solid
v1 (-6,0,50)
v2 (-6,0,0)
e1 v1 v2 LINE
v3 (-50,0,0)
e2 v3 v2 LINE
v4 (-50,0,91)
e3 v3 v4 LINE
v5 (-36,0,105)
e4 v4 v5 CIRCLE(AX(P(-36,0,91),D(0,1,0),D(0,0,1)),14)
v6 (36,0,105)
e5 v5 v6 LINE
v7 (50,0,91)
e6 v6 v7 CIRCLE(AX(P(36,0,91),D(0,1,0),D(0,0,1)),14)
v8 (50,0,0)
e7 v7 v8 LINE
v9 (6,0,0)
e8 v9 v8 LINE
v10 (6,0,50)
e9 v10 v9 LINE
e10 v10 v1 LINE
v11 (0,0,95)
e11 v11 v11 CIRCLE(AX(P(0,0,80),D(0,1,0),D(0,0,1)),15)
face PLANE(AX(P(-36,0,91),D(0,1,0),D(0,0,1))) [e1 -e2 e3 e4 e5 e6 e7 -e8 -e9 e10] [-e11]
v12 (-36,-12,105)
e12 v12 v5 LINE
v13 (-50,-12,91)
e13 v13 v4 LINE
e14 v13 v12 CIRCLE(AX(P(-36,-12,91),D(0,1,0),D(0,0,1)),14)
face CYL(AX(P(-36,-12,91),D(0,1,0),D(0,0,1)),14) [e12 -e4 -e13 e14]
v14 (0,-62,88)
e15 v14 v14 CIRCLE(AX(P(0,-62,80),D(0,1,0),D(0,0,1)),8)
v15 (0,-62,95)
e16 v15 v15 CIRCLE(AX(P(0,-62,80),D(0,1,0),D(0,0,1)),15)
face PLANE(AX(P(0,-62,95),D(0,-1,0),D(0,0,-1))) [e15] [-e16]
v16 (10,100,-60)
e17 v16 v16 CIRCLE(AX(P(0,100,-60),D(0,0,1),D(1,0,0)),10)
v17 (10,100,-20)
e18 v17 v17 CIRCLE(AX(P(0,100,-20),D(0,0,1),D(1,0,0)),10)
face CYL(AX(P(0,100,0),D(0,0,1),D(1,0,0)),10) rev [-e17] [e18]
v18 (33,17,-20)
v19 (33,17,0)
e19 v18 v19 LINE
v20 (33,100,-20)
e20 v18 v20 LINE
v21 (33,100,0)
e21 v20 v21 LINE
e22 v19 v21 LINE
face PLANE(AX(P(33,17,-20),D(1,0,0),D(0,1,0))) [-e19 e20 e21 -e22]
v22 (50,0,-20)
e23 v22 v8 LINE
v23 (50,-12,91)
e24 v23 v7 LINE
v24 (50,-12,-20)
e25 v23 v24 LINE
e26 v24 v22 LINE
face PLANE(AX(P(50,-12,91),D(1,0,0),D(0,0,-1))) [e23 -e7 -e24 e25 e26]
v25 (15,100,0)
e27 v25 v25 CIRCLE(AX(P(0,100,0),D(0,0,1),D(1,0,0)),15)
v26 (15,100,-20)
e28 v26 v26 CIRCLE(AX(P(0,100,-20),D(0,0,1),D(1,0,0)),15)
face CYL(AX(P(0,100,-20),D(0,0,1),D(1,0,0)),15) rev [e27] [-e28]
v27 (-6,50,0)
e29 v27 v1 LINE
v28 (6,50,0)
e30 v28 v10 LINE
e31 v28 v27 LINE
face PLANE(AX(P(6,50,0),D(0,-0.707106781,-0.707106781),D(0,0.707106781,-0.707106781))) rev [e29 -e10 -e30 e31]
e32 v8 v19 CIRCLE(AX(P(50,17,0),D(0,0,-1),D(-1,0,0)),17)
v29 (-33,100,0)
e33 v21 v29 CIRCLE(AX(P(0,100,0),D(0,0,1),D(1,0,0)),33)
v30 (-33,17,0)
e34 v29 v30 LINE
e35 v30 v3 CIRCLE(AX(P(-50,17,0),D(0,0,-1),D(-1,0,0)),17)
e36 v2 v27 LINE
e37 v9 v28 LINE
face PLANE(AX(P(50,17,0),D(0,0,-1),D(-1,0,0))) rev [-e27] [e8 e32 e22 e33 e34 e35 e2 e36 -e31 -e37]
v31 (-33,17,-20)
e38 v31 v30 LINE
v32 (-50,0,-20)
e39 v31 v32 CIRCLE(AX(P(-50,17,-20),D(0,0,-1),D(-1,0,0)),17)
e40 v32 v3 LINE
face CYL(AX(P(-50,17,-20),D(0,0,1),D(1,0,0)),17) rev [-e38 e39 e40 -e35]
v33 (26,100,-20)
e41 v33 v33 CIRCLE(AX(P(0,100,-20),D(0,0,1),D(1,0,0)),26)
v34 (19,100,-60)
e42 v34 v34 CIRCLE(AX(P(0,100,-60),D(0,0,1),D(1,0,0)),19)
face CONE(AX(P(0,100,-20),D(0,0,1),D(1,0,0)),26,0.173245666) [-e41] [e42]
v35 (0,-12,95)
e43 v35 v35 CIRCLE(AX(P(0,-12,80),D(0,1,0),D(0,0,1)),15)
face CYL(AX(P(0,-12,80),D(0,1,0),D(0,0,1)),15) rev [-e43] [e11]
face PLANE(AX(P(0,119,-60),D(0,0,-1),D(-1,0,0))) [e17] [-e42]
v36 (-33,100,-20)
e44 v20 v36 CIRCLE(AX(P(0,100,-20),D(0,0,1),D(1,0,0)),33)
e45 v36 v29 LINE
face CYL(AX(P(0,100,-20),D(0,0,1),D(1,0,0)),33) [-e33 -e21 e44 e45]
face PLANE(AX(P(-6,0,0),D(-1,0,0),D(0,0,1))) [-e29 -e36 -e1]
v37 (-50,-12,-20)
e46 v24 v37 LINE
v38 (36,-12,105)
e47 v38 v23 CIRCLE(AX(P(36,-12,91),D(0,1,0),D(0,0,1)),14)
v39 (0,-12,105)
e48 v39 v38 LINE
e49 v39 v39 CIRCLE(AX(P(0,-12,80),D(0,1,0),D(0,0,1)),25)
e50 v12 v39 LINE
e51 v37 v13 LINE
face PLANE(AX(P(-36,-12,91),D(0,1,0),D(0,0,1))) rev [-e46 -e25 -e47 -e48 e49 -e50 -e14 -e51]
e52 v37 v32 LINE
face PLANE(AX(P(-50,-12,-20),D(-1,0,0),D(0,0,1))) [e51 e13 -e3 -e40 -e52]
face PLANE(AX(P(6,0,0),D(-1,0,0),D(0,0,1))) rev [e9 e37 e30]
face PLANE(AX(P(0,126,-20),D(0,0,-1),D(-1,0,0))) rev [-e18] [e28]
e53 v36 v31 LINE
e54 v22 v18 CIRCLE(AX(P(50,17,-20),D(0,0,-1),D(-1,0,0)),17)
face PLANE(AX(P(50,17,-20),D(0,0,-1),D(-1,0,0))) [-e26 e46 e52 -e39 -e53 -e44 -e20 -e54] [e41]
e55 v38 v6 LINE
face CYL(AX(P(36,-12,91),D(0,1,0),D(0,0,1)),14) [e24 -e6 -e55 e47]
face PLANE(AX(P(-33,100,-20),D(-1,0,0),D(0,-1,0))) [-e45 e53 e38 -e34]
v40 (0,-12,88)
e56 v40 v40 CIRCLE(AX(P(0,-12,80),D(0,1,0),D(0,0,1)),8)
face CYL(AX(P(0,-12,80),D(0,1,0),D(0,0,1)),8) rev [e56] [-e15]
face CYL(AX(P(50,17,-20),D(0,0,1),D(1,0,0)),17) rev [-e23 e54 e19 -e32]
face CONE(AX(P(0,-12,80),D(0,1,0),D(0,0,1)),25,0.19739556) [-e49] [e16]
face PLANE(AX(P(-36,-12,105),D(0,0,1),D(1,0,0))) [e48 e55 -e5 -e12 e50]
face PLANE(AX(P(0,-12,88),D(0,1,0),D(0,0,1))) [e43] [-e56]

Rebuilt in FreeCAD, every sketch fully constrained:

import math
import FreeCAD as App
import Part
import Sketcher

V = App.Vector

doc = App.newDocument("Part")
body = doc.addObject("PartDesign::Body", "Body")

sketch1 = body.newObject("Sketcher::SketchObject", "Sketch")
sketch1.AttachmentSupport = (doc.getObject("XY_Plane"), [""])
sketch1.MapMode = "FlatFace"
sketch1.addGeometry(Part.LineSegment(V(-50, 0, 0), V(50, 0, 0)), False)
sketch1.addGeometry(Part.ArcOfCircle(Part.Circle(V(50, 17, 0), V(0, 0, 1), 17), math.radians(-180), math.radians(-90)), False)
sketch1.addGeometry(Part.LineSegment(V(33, 17, 0), V(33, 100, 0)), False)
sketch1.addGeometry(Part.ArcOfCircle(Part.Circle(V(0, 100, 0), V(0, 0, 1), 33), math.radians(0), math.radians(180)), False)
sketch1.addGeometry(Part.LineSegment(V(-33, 100, 0), V(-33, 17, 0)), False)
sketch1.addGeometry(Part.ArcOfCircle(Part.Circle(V(-50, 17, 0), V(0, 0, 1), 17), math.radians(-90), math.radians(0)), False)
sketch1.addGeometry(Part.Circle(V(0, 100, 0), V(0, 0, 1), 15), False)
sketch1.addConstraint(Sketcher.Constraint("Tangent", 0, 2, 1, 2))
sketch1.addConstraint(Sketcher.Constraint("Tangent", 1, 1, 2, 1))
sketch1.addConstraint(Sketcher.Constraint("Tangent", 2, 2, 3, 1))
sketch1.addConstraint(Sketcher.Constraint("Tangent", 3, 2, 4, 1))
sketch1.addConstraint(Sketcher.Constraint("Tangent", 4, 2, 5, 2))
sketch1.addConstraint(Sketcher.Constraint("Tangent", 5, 1, 0, 1))
sketch1.addConstraint(Sketcher.Constraint("Horizontal", 0))
sketch1.addConstraint(Sketcher.Constraint("Vertical", 2))
sketch1.addConstraint(Sketcher.Constraint("Vertical", 4))
sketch1.addConstraint(Sketcher.Constraint("Coincident", 6, 3, 3, 3))
sketch1.addConstraint(Sketcher.Constraint("Equal", 1, 5))
sketch1.addConstraint(Sketcher.Constraint("Symmetric", 0, 2, 5, 1, -1, 1))
sketch1.addConstraint(Sketcher.Constraint("Diameter", 6, 30.0))
sketch1.addConstraint(Sketcher.Constraint("Radius", 1, 17.0))
sketch1.addConstraint(Sketcher.Constraint("Radius", 3, 33.0))
sketch1.addConstraint(Sketcher.Constraint("DistanceY", 2, 1, 2, 2, 83.0))
pad1 = body.newObject("PartDesign::Pad", "Pad")
pad1.Profile = sketch1
pad1.Length = 20
pad1.Reversed = True

sketch2 = body.newObject("Sketcher::SketchObject", "Sketch001")
sketch2.AttachmentSupport = (doc.getObject("XZ_Plane"), [""])
sketch2.MapMode = "FlatFace"
sketch2.addGeometry(Part.LineSegment(V(-50, -20, 0), V(-50, 91, 0)), False)
sketch2.addGeometry(Part.ArcOfCircle(Part.Circle(V(-36, 91, 0), V(0, 0, 1), 14), math.radians(90), math.radians(180)), False)
sketch2.addGeometry(Part.LineSegment(V(-36, 105, 0), V(36, 105, 0)), False)
sketch2.addGeometry(Part.ArcOfCircle(Part.Circle(V(36, 91, 0), V(0, 0, 1), 14), math.radians(0), math.radians(90)), False)
sketch2.addGeometry(Part.LineSegment(V(50, 91, 0), V(50, -20, 0)), False)
sketch2.addGeometry(Part.LineSegment(V(50, -20, 0), V(-50, -20, 0)), False)
sketch2.addGeometry(Part.Circle(V(0, 80, 0), V(0, 0, 1), 15), False)
sketch2.addConstraint(Sketcher.Constraint("Tangent", 0, 2, 1, 2))
sketch2.addConstraint(Sketcher.Constraint("Tangent", 1, 1, 2, 1))
sketch2.addConstraint(Sketcher.Constraint("Tangent", 2, 2, 3, 2))
sketch2.addConstraint(Sketcher.Constraint("Tangent", 3, 1, 4, 1))
sketch2.addConstraint(Sketcher.Constraint("Coincident", 4, 2, 5, 1))
sketch2.addConstraint(Sketcher.Constraint("Coincident", 5, 2, 0, 1))
sketch2.addConstraint(Sketcher.Constraint("Vertical", 0))
sketch2.addConstraint(Sketcher.Constraint("Horizontal", 2))
sketch2.addConstraint(Sketcher.Constraint("Vertical", 4))
sketch2.addConstraint(Sketcher.Constraint("Horizontal", 5))
sketch2.addConstraint(Sketcher.Constraint("Equal", 1, 3))
sketch2.addConstraint(Sketcher.Constraint("PointOnObject", 6, 3, -2))
sketch2.addConstraint(Sketcher.Constraint("Diameter", 6, 30.0))
sketch2.addConstraint(Sketcher.Constraint("Radius", 1, 14.0))
sketch2.addConstraint(Sketcher.Constraint("DistanceX", 2, 1, 2, 2, 72.0))
sketch2.addConstraint(Sketcher.Constraint("DistanceY", 0, 1, 0, 2, 111.0))
sketch2.addConstraint(Sketcher.Constraint("DistanceX", 1, 3, -1, 1, 36.0))
sketch2.addConstraint(Sketcher.Constraint("DistanceY", -1, 1, 1, 3, 91.0))
sketch2.addConstraint(Sketcher.Constraint("DistanceY", -1, 1, 6, 3, 80.0))
pad2 = body.newObject("PartDesign::Pad", "Pad001")
pad2.Profile = sketch2
pad2.Length = 12

sketch3 = body.newObject("Sketcher::SketchObject", "Sketch002")
sketch3.AttachmentSupport = (doc.getObject("YZ_Plane"), [""])
sketch3.MapMode = "FlatFace"
sketch3.addGeometry(Part.LineSegment(V(50, 0, 0), V(0, 50, 0)), False)
sketch3.addGeometry(Part.LineSegment(V(0, 50, 0), V(0, 0, 0)), False)
sketch3.addGeometry(Part.LineSegment(V(0, 0, 0), V(50, 0, 0)), False)
sketch3.addConstraint(Sketcher.Constraint("Coincident", 0, 2, 1, 1))
sketch3.addConstraint(Sketcher.Constraint("Coincident", 1, 2, 2, 1))
sketch3.addConstraint(Sketcher.Constraint("Coincident", 2, 2, 0, 1))
sketch3.addConstraint(Sketcher.Constraint("Vertical", 1))
sketch3.addConstraint(Sketcher.Constraint("Horizontal", 2))
sketch3.addConstraint(Sketcher.Constraint("Coincident", 1, 2, -1, 1))
sketch3.addConstraint(Sketcher.Constraint("Equal", 2, 1))
sketch3.addConstraint(Sketcher.Constraint("DistanceX", 2, 1, 2, 2, 50.0))
pad3 = body.newObject("PartDesign::Pad", "Pad002")
pad3.Profile = sketch3
pad3.Length = 12
pad3.Midplane = True

sketch4 = body.newObject("Sketcher::SketchObject", "Sketch003")
sketch4.AttachmentSupport = (doc.getObject("YZ_Plane"), [""])
sketch4.MapMode = "FlatFace"
sketch4.addGeometry(Part.LineSegment(V(119, -60, 0), V(126, -20, 0)), False)
sketch4.addGeometry(Part.LineSegment(V(126, -20, 0), V(110, -20, 0)), False)
sketch4.addGeometry(Part.LineSegment(V(110, -20, 0), V(110, -60, 0)), False)
sketch4.addGeometry(Part.LineSegment(V(110, -60, 0), V(119, -60, 0)), False)
sketch4.addGeometry(Part.LineSegment(V(100, -20, 0), V(100, -60, 0)), True)
sketch4.addConstraint(Sketcher.Constraint("Coincident", 0, 2, 1, 1))
sketch4.addConstraint(Sketcher.Constraint("Coincident", 1, 2, 2, 1))
sketch4.addConstraint(Sketcher.Constraint("Coincident", 2, 2, 3, 1))
sketch4.addConstraint(Sketcher.Constraint("Coincident", 3, 2, 0, 1))
sketch4.addConstraint(Sketcher.Constraint("Horizontal", 1))
sketch4.addConstraint(Sketcher.Constraint("Vertical", 2))
sketch4.addConstraint(Sketcher.Constraint("Horizontal", 3))
sketch4.addConstraint(Sketcher.Constraint("Vertical", 4))
sketch4.addConstraint(Sketcher.Constraint("Horizontal", 1, 2, 4, 1))
sketch4.addConstraint(Sketcher.Constraint("Horizontal", 3, 2, 4, 2))
sketch4.addConstraint(Sketcher.Constraint("DistanceX", 1, 2, 1, 1, 16.0))
sketch4.addConstraint(Sketcher.Constraint("DistanceX", 3, 1, 3, 2, 9.0))
sketch4.addConstraint(Sketcher.Constraint("DistanceY", 2, 2, 2, 1, 40.0))
sketch4.addConstraint(Sketcher.Constraint("DistanceX", -1, 1, 0, 2, 126.0))
sketch4.addConstraint(Sketcher.Constraint("DistanceY", 0, 2, -1, 1, 20.0))
sketch4.addConstraint(Sketcher.Constraint("DistanceX", -1, 1, 4, 1, 100.0))
revolution = body.newObject("PartDesign::Revolution", "Revolution")
revolution.Profile = sketch4
revolution.ReferenceAxis = (sketch4, ["Axis0"])
revolution.Angle = 360

sketch5 = body.newObject("Sketcher::SketchObject", "Sketch004")
sketch5.AttachmentSupport = (doc.getObject("YZ_Plane"), [""])
sketch5.MapMode = "FlatFace"
sketch5.addGeometry(Part.LineSegment(V(-12, 105, 0), V(-62, 95, 0)), False)
sketch5.addGeometry(Part.LineSegment(V(-62, 95, 0), V(-62, 88, 0)), False)
sketch5.addGeometry(Part.LineSegment(V(-62, 88, 0), V(-12, 88, 0)), False)
sketch5.addGeometry(Part.LineSegment(V(-12, 88, 0), V(-12, 105, 0)), False)
sketch5.addGeometry(Part.LineSegment(V(-12, 80, 0), V(-62, 80, 0)), True)
sketch5.addConstraint(Sketcher.Constraint("Coincident", 0, 2, 1, 1))
sketch5.addConstraint(Sketcher.Constraint("Coincident", 1, 2, 2, 1))
sketch5.addConstraint(Sketcher.Constraint("Coincident", 2, 2, 3, 1))
sketch5.addConstraint(Sketcher.Constraint("Coincident", 3, 2, 0, 1))
sketch5.addConstraint(Sketcher.Constraint("Vertical", 1))
sketch5.addConstraint(Sketcher.Constraint("Horizontal", 2))
sketch5.addConstraint(Sketcher.Constraint("Vertical", 3))
sketch5.addConstraint(Sketcher.Constraint("Horizontal", 4))
sketch5.addConstraint(Sketcher.Constraint("Vertical", 3, 2, 4, 1))
sketch5.addConstraint(Sketcher.Constraint("Vertical", 1, 2, 4, 2))
sketch5.addConstraint(Sketcher.Constraint("DistanceX", 2, 1, 2, 2, 50.0))
sketch5.addConstraint(Sketcher.Constraint("DistanceY", 1, 2, 1, 1, 7.0))
sketch5.addConstraint(Sketcher.Constraint("DistanceY", 3, 1, 3, 2, 17.0))
sketch5.addConstraint(Sketcher.Constraint("DistanceX", 0, 2, -1, 1, 62.0))
sketch5.addConstraint(Sketcher.Constraint("DistanceY", -1, 1, 0, 2, 95.0))
sketch5.addConstraint(Sketcher.Constraint("DistanceY", -1, 1, 4, 1, 80.0))
revolution2 = body.newObject("PartDesign::Revolution", "Revolution001")
revolution2.Profile = sketch5
revolution2.ReferenceAxis = (sketch5, ["Axis0"])
revolution2.Angle = 360

doc.recompute()
